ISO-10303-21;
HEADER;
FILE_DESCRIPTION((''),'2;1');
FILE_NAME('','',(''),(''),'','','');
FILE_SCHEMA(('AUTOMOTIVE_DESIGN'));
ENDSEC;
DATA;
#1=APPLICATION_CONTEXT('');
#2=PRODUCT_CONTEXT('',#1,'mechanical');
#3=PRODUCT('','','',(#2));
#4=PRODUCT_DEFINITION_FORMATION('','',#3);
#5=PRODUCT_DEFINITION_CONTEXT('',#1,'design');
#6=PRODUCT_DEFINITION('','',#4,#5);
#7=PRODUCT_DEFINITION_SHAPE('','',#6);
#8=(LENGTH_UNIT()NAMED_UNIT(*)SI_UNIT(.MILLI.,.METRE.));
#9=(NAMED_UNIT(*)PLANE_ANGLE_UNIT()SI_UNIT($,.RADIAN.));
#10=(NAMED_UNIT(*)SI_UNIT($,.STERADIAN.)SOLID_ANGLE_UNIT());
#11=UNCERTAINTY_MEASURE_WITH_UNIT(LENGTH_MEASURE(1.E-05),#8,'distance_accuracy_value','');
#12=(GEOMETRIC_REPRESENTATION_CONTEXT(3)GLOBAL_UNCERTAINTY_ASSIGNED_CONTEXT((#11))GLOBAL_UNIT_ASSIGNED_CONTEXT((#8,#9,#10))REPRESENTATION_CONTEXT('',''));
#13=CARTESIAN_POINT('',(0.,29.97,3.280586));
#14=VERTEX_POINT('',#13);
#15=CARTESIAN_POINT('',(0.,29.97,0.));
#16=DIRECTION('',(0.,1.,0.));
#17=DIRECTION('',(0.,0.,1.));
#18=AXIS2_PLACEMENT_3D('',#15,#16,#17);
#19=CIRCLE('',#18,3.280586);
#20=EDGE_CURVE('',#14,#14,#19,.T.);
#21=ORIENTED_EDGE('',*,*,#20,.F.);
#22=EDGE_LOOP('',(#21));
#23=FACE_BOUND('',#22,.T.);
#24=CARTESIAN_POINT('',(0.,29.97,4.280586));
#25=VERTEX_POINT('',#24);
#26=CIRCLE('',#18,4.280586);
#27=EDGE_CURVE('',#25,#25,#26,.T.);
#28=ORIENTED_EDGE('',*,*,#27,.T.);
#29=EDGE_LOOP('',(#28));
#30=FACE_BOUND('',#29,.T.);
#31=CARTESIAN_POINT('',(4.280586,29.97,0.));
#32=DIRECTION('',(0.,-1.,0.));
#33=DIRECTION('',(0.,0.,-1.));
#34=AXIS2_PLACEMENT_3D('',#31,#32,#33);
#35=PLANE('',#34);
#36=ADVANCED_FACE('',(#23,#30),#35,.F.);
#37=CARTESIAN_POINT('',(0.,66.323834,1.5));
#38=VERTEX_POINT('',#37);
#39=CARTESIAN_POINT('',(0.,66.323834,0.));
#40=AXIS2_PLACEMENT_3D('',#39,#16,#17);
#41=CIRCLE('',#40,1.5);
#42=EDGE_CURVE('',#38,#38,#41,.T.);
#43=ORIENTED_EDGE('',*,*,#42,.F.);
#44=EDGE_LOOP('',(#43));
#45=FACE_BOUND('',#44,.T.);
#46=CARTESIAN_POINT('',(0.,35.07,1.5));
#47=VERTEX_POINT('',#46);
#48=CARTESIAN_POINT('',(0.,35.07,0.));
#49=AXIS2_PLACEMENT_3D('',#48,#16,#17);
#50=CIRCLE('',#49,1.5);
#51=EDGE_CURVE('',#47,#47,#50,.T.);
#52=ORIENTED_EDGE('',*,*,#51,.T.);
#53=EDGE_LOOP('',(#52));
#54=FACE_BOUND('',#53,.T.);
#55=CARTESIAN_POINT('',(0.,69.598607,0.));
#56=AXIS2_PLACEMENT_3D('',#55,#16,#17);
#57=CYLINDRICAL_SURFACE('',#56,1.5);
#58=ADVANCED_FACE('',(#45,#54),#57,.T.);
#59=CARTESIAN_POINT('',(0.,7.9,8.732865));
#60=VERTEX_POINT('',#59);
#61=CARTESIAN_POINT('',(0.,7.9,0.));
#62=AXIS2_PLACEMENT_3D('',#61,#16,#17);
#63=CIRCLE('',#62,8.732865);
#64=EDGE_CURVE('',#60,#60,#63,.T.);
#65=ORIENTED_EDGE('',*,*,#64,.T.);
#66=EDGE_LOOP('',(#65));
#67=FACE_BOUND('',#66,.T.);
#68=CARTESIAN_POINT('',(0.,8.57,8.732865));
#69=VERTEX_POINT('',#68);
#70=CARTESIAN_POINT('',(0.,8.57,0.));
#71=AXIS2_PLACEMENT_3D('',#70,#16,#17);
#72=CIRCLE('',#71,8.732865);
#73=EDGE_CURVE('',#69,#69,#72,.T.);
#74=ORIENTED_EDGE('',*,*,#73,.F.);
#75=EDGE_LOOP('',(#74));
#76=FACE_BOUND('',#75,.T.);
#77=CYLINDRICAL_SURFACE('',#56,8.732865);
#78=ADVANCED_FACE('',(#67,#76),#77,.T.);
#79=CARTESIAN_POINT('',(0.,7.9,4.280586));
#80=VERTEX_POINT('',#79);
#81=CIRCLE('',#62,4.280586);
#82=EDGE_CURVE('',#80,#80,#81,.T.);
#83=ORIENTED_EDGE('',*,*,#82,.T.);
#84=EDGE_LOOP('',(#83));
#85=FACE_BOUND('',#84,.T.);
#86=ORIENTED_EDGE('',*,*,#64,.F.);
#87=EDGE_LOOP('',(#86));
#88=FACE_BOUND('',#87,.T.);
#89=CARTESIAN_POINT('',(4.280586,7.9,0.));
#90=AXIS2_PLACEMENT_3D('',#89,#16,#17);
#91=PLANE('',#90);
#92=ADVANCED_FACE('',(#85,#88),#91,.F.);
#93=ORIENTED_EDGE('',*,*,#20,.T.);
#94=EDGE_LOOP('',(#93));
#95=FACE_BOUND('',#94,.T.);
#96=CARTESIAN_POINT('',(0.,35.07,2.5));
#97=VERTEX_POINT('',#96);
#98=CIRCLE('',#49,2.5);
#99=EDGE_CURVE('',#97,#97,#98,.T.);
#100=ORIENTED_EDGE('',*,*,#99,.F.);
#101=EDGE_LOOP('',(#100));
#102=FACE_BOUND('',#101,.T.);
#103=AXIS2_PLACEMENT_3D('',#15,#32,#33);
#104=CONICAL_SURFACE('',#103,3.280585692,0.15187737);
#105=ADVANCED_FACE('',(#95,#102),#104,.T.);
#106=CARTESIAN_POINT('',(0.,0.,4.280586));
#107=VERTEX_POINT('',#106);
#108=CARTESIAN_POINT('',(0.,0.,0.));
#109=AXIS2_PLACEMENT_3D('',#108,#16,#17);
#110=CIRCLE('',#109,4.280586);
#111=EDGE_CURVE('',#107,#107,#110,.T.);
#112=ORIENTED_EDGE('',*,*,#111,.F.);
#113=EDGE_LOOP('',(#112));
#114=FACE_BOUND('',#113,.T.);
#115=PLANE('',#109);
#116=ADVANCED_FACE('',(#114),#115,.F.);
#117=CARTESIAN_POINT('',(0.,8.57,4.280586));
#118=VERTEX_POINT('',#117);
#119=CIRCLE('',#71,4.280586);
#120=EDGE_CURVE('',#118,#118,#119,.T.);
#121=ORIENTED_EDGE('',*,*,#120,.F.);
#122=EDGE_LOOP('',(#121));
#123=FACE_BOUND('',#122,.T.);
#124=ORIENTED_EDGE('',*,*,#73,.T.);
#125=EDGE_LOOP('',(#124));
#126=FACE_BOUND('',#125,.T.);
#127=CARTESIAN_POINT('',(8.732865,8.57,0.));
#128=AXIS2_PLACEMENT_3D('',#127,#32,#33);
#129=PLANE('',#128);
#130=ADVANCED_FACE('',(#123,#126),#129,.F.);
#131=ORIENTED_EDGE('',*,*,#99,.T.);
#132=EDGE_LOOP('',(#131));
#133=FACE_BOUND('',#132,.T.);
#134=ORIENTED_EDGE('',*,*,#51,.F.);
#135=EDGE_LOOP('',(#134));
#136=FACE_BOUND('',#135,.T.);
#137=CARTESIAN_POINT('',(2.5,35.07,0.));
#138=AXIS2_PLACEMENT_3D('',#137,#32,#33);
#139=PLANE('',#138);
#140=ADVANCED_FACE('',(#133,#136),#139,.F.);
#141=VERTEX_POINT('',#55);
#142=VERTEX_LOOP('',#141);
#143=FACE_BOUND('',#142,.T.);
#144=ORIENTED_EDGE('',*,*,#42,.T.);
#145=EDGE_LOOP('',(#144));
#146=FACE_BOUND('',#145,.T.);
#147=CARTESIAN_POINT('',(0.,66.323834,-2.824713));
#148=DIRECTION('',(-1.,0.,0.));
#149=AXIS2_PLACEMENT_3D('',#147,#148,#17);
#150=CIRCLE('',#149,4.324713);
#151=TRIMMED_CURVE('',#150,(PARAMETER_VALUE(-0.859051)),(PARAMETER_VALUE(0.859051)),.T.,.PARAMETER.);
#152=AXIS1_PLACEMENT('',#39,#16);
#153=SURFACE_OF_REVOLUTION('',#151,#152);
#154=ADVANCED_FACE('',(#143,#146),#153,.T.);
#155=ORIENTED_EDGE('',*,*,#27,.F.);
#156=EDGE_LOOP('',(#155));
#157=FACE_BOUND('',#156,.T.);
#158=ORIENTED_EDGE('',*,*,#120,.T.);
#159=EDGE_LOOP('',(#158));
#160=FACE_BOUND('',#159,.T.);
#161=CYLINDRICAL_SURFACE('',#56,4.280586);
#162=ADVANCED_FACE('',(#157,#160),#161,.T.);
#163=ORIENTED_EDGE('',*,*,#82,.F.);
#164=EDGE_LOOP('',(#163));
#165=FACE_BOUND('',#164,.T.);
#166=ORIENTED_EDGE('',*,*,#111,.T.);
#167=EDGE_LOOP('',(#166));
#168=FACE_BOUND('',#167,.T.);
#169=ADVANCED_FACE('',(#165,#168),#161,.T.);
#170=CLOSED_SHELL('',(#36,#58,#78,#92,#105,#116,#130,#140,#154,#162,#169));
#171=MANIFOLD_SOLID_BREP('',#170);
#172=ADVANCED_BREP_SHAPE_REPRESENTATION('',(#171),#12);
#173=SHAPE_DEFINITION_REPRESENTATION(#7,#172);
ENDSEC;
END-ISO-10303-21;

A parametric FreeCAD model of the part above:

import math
import FreeCAD as App
import Part
import Sketcher
from FreeCAD import Vector

doc = App.newDocument("Part")
body = doc.addObject("PartDesign::Body", "Body")

sketch1 = body.newObject("Sketcher::SketchObject", "Sketch")
sketch1.AttachmentSupport = (doc.getObject("XY_Plane"), [""])
sketch1.MapMode = "FlatFace"
sketch1.addGeometry([
    Part.LineSegment(Vector(0, 0, 0), Vector(4.280586, 0, 0)),
    Part.LineSegment(Vector(4.280586, 0, 0), Vector(4.280586, 7.9, 0)),
    Part.LineSegment(Vector(4.280586, 7.9, 0), Vector(8.732865, 7.9, 0)),
    Part.LineSegment(Vector(8.732865, 7.9, 0), Vector(8.732865, 8.57, 0)),
    Part.LineSegment(Vector(8.732865, 8.57, 0), Vector(4.280586, 8.57, 0)),
    Part.LineSegment(Vector(4.280586, 8.57, 0), Vector(4.280586, 29.97, 0)),
    Part.LineSegment(Vector(4.280586, 29.97, 0), Vector(3.280586, 29.97, 0)),
    Part.LineSegment(Vector(3.280586, 29.97, 0), Vector(2.5, 35.07, 0)),
    Part.LineSegment(Vector(2.5, 35.07, 0), Vector(1.5, 35.07, 0)),
    Part.LineSegment(Vector(1.5, 35.07, 0), Vector(1.5, 66.323834, 0)),
    Part.ArcOfCircle(Part.Circle(Vector(-2.824713, 66.323834, 0), Vector(0, 0, 1), 4.324713), math.radians(0), math.radians(49.220014)),
    Part.LineSegment(Vector(0, 69.598607, 0), Vector(0, 0, 0)),
], False)
sketch1.addConstraint([
    Sketcher.Constraint("Coincident", 0, 2, 1, 1),
    Sketcher.Constraint("Coincident", 1, 2, 2, 1),
    Sketcher.Constraint("Coincident", 2, 2, 3, 1),
    Sketcher.Constraint("Coincident", 3, 2, 4, 1),
    Sketcher.Constraint("Coincident", 4, 2, 5, 1),
    Sketcher.Constraint("Coincident", 5, 2, 6, 1),
    Sketcher.Constraint("Coincident", 6, 2, 7, 1),
    Sketcher.Constraint("Coincident", 7, 2, 8, 1),
    Sketcher.Constraint("Coincident", 8, 2, 9, 1),
    Sketcher.Constraint("Tangent", 9, 2, 10, 1),
    Sketcher.Constraint("Coincident", 10, 2, 11, 1),
    Sketcher.Constraint("Coincident", 11, 2, 0, 1),
    Sketcher.Constraint("Horizontal", 0),
    Sketcher.Constraint("Vertical", 1),
    Sketcher.Constraint("Horizontal", 2),
    Sketcher.Constraint("Vertical", 3),
    Sketcher.Constraint("Horizontal", 4),
    Sketcher.Constraint("Vertical", 5),
    Sketcher.Constraint("Horizontal", 6),
    Sketcher.Constraint("Horizontal", 8),
    Sketcher.Constraint("Vertical", 9),
    Sketcher.Constraint("Vertical", 11),
    Sketcher.Constraint("Coincident", 11, 2, -1, 1),
    Sketcher.Constraint("Vertical", 1, 2, 4, 2),
    Sketcher.Constraint("Equal", 6, 8),
    Sketcher.Constraint("DistanceX", 6, 2, 6, 1, 1.0),
    Sketcher.Constraint("DistanceY", 1, 1, 1, 2, 7.9),
    Sketcher.Constraint("DistanceY", 5, 1, 5, 2, 21.4),
    Sketcher.Constraint("DistanceY", 3, 1, 3, 2, 0.67),
    Sketcher.Constraint("DistanceX", -1, 1, 7, 2, 2.5),
    Sketcher.Constraint("DistanceY", 6, 2, 7, 2, 5.1),
    Sketcher.Constraint("Radius", 10, 4.324713),
    Sketcher.Constraint("DistanceX", 2, 1, 2, 2, 4.452279),
    Sketcher.Constraint("DistanceX", 10, 3, 0, 2, 7.105298),
    Sketcher.Constraint("DistanceY", 9, 1, 9, 2, 31.253834),
])
revolution = body.newObject("PartDesign::Revolution", "Revolution")
revolution.Profile = sketch1
revolution.ReferenceAxis = (sketch1, ["V_Axis"])
revolution.Angle = 360

doc.recompute()
